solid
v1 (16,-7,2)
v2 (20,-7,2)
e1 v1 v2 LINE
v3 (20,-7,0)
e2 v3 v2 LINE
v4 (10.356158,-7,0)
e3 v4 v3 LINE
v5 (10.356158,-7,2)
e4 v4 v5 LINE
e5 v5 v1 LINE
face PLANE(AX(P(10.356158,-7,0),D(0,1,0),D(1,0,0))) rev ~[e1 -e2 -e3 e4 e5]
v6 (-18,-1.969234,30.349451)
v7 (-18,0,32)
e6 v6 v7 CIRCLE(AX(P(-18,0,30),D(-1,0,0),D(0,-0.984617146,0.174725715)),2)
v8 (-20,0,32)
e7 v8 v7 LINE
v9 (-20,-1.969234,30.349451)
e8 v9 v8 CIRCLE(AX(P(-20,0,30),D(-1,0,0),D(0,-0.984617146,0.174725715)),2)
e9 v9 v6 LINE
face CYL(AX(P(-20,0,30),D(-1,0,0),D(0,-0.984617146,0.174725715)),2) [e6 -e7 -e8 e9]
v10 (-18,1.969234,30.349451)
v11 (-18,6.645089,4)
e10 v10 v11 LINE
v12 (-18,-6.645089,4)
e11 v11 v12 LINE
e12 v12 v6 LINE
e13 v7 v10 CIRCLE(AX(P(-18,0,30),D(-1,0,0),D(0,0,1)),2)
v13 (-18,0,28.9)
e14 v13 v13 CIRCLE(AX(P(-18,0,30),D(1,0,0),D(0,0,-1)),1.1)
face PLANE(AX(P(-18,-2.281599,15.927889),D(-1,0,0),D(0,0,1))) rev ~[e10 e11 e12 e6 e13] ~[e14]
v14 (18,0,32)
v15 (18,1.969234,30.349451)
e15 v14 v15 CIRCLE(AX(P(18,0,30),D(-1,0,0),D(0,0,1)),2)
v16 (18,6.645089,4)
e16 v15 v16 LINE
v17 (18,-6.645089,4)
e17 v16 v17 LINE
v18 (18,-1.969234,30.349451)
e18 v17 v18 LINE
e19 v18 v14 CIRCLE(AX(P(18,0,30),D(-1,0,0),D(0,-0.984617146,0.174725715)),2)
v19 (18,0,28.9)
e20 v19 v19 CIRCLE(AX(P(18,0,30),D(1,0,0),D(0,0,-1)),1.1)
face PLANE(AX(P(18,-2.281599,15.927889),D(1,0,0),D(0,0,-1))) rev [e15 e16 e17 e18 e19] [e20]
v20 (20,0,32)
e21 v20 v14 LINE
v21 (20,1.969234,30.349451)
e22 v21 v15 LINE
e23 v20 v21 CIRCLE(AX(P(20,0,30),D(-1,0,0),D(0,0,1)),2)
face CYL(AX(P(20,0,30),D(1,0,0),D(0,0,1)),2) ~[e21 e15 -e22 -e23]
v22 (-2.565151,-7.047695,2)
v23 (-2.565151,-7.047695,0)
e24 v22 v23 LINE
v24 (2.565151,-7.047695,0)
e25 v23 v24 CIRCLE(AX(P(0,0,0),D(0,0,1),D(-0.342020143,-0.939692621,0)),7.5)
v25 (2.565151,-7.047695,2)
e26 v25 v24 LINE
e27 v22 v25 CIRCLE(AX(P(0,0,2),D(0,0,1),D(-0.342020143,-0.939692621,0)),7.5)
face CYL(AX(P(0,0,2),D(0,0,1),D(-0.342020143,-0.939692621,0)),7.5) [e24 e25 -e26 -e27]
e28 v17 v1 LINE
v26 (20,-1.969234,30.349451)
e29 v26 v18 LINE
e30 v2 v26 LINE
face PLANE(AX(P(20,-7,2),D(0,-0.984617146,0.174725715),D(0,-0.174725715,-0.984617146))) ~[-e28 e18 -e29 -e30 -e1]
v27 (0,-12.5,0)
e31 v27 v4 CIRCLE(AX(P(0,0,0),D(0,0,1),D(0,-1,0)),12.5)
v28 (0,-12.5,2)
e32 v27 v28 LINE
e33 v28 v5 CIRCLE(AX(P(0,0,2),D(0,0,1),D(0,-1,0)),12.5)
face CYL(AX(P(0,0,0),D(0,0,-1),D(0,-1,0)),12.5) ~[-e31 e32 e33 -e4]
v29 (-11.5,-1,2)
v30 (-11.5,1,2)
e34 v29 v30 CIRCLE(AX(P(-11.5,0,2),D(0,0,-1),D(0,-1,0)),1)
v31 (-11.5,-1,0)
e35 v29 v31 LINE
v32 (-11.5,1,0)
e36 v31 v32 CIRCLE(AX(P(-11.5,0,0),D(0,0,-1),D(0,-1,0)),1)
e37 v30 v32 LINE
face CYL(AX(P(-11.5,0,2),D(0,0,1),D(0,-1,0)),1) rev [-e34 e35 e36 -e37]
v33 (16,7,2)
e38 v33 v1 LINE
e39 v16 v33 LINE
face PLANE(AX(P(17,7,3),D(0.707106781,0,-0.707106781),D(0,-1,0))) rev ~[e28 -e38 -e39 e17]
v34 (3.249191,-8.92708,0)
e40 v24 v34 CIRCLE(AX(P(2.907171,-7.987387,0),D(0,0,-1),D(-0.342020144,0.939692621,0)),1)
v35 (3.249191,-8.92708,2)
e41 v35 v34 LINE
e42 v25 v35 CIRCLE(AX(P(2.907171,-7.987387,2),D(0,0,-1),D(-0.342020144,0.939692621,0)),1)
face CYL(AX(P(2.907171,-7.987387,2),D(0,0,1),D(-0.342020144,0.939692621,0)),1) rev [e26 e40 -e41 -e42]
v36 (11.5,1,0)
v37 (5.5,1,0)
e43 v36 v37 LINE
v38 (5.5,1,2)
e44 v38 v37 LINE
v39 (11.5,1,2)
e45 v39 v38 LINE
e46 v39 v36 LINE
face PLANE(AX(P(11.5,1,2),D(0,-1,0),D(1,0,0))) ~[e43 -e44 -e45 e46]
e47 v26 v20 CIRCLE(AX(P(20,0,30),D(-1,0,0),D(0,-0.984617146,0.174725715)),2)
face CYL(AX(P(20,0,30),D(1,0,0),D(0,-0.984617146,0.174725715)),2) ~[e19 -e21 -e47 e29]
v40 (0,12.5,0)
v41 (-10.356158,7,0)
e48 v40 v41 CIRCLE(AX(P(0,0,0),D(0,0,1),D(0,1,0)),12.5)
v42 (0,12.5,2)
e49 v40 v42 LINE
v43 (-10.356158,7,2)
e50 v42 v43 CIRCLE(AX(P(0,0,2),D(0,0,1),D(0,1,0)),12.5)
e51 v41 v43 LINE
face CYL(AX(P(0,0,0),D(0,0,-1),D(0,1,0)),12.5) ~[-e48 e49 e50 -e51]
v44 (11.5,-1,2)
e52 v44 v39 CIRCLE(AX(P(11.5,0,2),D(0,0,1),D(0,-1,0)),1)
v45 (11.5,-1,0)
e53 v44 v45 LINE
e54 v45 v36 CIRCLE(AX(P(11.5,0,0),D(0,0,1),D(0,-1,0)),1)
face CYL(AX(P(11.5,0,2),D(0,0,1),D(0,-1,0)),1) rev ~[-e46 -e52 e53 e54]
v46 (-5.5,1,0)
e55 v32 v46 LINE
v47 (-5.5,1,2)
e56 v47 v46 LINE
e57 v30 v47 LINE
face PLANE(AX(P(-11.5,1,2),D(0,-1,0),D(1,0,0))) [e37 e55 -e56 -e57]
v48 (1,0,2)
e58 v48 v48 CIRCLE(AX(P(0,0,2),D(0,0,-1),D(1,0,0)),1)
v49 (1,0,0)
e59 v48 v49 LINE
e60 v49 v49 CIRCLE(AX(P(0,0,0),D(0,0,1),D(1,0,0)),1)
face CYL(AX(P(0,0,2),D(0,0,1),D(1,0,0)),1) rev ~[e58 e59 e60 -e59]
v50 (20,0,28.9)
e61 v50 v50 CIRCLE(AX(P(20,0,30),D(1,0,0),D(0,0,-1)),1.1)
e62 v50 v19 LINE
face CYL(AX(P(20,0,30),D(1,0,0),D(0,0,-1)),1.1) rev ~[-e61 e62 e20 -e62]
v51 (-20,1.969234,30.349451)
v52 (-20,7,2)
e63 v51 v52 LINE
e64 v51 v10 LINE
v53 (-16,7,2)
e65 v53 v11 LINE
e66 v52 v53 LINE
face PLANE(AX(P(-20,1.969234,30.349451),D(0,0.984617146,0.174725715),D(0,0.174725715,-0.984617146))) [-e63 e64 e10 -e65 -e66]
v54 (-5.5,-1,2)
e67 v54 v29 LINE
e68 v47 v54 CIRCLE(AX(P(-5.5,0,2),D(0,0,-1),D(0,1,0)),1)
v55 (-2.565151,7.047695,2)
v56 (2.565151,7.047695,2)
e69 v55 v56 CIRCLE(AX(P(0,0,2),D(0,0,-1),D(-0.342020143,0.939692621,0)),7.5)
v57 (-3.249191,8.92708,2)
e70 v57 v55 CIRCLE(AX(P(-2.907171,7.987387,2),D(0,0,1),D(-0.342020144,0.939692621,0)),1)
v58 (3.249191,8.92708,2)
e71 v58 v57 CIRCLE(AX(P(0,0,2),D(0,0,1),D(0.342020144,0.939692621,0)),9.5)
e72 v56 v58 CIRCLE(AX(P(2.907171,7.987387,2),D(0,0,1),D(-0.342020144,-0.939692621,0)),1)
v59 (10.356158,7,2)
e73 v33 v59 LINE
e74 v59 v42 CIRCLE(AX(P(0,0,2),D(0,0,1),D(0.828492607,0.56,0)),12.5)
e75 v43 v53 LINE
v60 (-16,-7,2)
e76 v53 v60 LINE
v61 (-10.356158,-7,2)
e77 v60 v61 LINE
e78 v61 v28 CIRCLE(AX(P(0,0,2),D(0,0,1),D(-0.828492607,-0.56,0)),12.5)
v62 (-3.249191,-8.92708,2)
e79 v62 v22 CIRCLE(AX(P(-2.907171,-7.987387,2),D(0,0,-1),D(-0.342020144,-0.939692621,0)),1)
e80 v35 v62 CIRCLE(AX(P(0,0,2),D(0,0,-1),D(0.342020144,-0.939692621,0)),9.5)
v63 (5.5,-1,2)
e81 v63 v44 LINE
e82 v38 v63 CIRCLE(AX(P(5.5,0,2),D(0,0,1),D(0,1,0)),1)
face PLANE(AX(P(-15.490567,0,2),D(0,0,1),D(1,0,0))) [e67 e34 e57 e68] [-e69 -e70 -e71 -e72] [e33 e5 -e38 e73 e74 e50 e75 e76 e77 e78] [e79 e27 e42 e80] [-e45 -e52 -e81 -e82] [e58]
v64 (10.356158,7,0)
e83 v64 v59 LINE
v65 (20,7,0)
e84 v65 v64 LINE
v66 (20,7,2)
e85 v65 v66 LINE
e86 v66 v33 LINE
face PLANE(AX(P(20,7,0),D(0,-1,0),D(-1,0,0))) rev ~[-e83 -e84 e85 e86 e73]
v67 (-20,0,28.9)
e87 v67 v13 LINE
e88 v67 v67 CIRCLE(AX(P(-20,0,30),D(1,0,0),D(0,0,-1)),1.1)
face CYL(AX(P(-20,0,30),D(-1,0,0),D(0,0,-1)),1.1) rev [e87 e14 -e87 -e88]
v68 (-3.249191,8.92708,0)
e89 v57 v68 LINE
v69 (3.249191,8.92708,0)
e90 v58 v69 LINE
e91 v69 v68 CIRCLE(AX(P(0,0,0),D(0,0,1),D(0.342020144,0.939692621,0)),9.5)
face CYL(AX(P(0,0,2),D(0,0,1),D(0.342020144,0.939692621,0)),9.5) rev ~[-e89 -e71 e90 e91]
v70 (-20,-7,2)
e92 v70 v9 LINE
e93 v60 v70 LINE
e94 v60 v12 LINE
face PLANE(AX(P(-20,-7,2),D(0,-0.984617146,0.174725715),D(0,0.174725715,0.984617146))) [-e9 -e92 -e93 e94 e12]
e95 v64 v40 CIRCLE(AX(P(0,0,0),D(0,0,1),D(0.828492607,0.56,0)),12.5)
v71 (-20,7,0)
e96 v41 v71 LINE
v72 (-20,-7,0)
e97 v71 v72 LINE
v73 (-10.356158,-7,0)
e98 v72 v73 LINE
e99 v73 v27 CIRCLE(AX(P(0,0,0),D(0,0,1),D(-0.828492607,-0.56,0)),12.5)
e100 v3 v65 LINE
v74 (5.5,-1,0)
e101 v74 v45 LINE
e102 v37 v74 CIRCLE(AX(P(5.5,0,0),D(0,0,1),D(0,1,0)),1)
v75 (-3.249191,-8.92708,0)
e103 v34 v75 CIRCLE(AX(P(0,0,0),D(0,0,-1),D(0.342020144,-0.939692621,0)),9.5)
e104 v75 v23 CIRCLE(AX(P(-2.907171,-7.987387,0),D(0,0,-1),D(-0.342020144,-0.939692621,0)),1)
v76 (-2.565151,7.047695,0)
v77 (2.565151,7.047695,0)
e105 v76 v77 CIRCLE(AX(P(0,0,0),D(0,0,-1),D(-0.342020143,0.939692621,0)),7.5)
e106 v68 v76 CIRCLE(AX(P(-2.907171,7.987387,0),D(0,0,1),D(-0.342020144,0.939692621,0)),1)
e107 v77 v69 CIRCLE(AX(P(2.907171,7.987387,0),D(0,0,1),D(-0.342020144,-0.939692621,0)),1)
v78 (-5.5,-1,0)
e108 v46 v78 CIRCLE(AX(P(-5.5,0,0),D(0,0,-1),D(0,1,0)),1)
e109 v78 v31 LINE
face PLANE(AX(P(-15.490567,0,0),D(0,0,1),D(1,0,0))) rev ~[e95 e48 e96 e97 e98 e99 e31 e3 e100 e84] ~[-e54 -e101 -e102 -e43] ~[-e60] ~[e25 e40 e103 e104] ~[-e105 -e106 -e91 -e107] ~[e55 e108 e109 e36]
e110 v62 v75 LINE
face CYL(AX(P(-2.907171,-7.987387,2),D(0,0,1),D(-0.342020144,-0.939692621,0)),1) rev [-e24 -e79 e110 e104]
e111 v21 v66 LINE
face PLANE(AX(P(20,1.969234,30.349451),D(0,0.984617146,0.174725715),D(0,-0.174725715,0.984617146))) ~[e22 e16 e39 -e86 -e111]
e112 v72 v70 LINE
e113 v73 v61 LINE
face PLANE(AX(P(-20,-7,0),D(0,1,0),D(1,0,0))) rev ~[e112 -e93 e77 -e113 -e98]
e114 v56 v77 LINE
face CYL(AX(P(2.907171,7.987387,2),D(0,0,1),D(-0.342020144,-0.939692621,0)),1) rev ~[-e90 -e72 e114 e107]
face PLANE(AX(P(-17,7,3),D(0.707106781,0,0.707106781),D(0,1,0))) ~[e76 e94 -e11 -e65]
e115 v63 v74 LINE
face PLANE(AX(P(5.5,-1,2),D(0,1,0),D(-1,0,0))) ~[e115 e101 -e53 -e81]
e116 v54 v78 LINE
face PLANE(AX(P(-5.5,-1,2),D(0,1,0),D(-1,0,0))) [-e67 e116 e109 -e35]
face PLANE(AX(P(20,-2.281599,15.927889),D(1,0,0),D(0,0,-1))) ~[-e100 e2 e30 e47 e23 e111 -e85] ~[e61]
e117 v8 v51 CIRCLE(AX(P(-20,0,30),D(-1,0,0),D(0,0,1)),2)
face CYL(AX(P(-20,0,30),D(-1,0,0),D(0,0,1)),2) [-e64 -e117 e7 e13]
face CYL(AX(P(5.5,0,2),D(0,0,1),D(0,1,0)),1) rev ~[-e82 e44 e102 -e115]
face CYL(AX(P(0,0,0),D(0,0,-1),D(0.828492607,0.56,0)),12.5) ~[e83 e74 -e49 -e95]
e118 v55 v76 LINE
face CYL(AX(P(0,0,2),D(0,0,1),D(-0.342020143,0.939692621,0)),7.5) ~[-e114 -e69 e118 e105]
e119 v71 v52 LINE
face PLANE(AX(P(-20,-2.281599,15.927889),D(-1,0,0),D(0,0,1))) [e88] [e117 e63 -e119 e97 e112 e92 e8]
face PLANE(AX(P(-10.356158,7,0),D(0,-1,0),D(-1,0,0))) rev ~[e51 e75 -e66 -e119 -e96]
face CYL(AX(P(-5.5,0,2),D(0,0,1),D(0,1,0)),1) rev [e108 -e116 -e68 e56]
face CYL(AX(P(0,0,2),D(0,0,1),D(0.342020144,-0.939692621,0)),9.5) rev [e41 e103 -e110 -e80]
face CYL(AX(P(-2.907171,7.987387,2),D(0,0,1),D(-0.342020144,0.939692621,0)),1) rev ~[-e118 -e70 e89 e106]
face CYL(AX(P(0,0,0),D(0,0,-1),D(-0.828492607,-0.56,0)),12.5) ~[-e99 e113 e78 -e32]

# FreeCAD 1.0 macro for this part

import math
import FreeCAD as App
import Part
import Sketcher
Q = App.Units.Quantity


def edges_at(feature, points):
    """Names of the edges that pass closest to the given points."""
    edges = feature.Shape.Edges
    near = lambda p: min(range(len(edges)), key=lambda i: edges[i].distToShape(Part.Vertex(*p))[0])
    return sorted({f"Edge{near(p) + 1}" for p in points})

doc = App.newDocument("Part")
body = doc.addObject("PartDesign::Body", "Body")

sketch1 = doc.addObject("Sketcher::SketchObject", "Sketch")
body.addObject(sketch1)
sketch1.AttachmentSupport = (doc.XY_Plane, [""])
sketch1.MapMode = "FlatFace"
sketch1.addGeometry([
    Part.LineSegment(App.Vector(-20, -7, 0), App.Vector(-10, -7, 0)),
    Part.ArcOfCircle(Part.Circle(App.Vector(0, 0, 0), App.Vector(0, 0, 1), 12), math.radians(-146), math.radians(-90)),
    Part.ArcOfCircle(Part.Circle(App.Vector(0, 0, 0), App.Vector(0, 0, 1), 12), math.radians(-90), math.radians(-34)),
    Part.LineSegment(App.Vector(10, -7, 0), App.Vector(20, -7, 0)),
    Part.LineSegment(App.Vector(20, -7, 0), App.Vector(20, 7, 0)),
    Part.LineSegment(App.Vector(20, 7, 0), App.Vector(10, 7, 0)),
    Part.ArcOfCircle(Part.Circle(App.Vector(0, 0, 0), App.Vector(0, 0, 1), 12), math.radians(34), math.radians(90)),
    Part.ArcOfCircle(Part.Circle(App.Vector(0, 0, 0), App.Vector(0, 0, 1), 12), math.radians(90), math.radians(146)),
    Part.LineSegment(App.Vector(-10, 7, 0), App.Vector(-20, 7, 0)),
    Part.LineSegment(App.Vector(-20, 7, 0), App.Vector(-20, -7, 0)),
], False)
sketch1.addConstraint([
    Sketcher.Constraint("Coincident", 0, 2, 1, 1),
    Sketcher.Constraint("Tangent", 1, 2, 2, 1),
    Sketcher.Constraint("Coincident", 2, 2, 3, 1),
    Sketcher.Constraint("Coincident", 3, 2, 4, 1),
    Sketcher.Constraint("Coincident", 4, 2, 5, 1),
    Sketcher.Constraint("Coincident", 5, 2, 6, 1),
    Sketcher.Constraint("Tangent", 6, 2, 7, 1),
    Sketcher.Constraint("Coincident", 7, 2, 8, 1),
    Sketcher.Constraint("Coincident", 8, 2, 9, 1),
    Sketcher.Constraint("Coincident", 9, 2, 0, 1),
    Sketcher.Constraint("Horizontal", 0),
    Sketcher.Constraint("Horizontal", 3),
    Sketcher.Constraint("Vertical", 4),
    Sketcher.Constraint("Horizontal", 5),
    Sketcher.Constraint("Horizontal", 8),
    Sketcher.Constraint("Vertical", 9),
    Sketcher.Constraint("Coincident", 1, 3, -1, 1),
    Sketcher.Constraint("Coincident", 6, 3, -1, 1),
    Sketcher.Constraint("Equal", 1, 2),
    Sketcher.Constraint("Equal", 2, 6),
    Sketcher.Constraint("Equal", 6, 7),
    Sketcher.Constraint("Symmetric", 3, 2, 8, 2, -1, 1),
    Sketcher.Constraint("PointOnObject", 1, 2, -2),
    Sketcher.Constraint("PointOnObject", 6, 2, -2),
    Sketcher.Constraint("Horizontal", 0, 2, 2, 2),
    Sketcher.Constraint("Horizontal", 5, 2, 7, 2),
    Sketcher.Constraint("Radius", 1, Q("12.5 mm")),
    Sketcher.Constraint("DistanceY", 4, 1, 4, 2, Q("14 mm")),
    Sketcher.Constraint("DistanceX", -1, 1, 3, 2, Q("20 mm")),
])
pad1 = doc.addObject("PartDesign::Pad", "Pad")
body.addObject(pad1)
pad1.Profile = sketch1
pad1.Length = 2

sketch2 = doc.addObject("Sketcher::SketchObject", "Sketch001")
body.addObject(sketch2)
sketch2.AttachmentSupport = (doc.YZ_Plane, [""])
sketch2.MapMode = "FlatFace"
sketch2.AttachmentOffset = App.Placement(App.Vector(0, 0, -20), App.Rotation())
sketch2.addGeometry([
    Part.LineSegment(App.Vector(-7, 2, 0), App.Vector(-2, 30.3, 0)),
    Part.ArcOfCircle(Part.Circle(App.Vector(0, 30, 0), App.Vector(0, 0, 1), 2), math.radians(90), math.radians(170)),
    Part.ArcOfCircle(Part.Circle(App.Vector(0, 30, 0), App.Vector(0, 0, 1), 2), math.radians(10), math.radians(90)),
    Part.LineSegment(App.Vector(2, 30.3, 0), App.Vector(7, 2, 0)),
    Part.LineSegment(App.Vector(7, 2, 0), App.Vector(-7, 2, 0)),
    Part.Circle(App.Vector(0, 30, 0), App.Vector(0, 0, 1), 1.1),
], False)
sketch2.addConstraint([
    Sketcher.Constraint("Tangent", 0, 2, 1, 2),
    Sketcher.Constraint("Tangent", 1, 1, 2, 2),
    Sketcher.Constraint("Tangent", 2, 1, 3, 1),
    Sketcher.Constraint("Coincident", 3, 2, 4, 1),
    Sketcher.Constraint("Coincident", 4, 2, 0, 1),
    Sketcher.Constraint("Horizontal", 4),
    Sketcher.Constraint("Coincident", 5, 3, 1, 3),
    Sketcher.Constraint("Equal", 1, 2),
    Sketcher.Constraint("Symmetric", 0, 2, 2, 1, -2),
    Sketcher.Constraint("PointOnObject", 1, 1, -2),
    Sketcher.Constraint("Radius", 1, Q("2 mm")),
    Sketcher.Constraint("Diameter", 5, Q("2.2 mm")),
    Sketcher.Constraint("DistanceX", 4, 2, 4, 1, Q("14 mm")),
    Sketcher.Constraint("DistanceY", -1, 1, 1, 3, Q("30 mm")),
    Sketcher.Constraint("DistanceY", -1, 1, 3, 2, Q("2 mm")),
])
pad2 = doc.addObject("PartDesign::Pad", "Pad001")
body.addObject(pad2)
pad2.Profile = sketch2
pad2.Length = 2
doc.recompute()

mirrored = doc.addObject("PartDesign::Mirrored", "Mirrored")
body.addObject(mirrored)
mirrored.Originals = [pad2]
mirrored.MirrorPlane = (doc.YZ_Plane, [""])
body.Tip = mirrored

sketch3 = doc.addObject("Sketcher::SketchObject", "Sketch002")
body.addObject(sketch3)
sketch3.AttachmentSupport = (doc.XY_Plane, [""])
sketch3.MapMode = "FlatFace"
sketch3.AttachmentOffset = App.Placement(App.Vector(0, 0, 2), App.Rotation())
sketch3.addGeometry([
    Part.Circle(App.Vector(0, 0, 0), App.Vector(0, 0, 1), 1),
    Part.LineSegment(App.Vector(-5.5, 1, 0), App.Vector(-11.5, 1, 0)),
    Part.ArcOfCircle(Part.Circle(App.Vector(-11.5, 0, 0), App.Vector(0, 0, 1), 1), math.radians(90), math.radians(270)),
    Part.LineSegment(App.Vector(-11.5, -1, 0), App.Vector(-5.5, -1, 0)),
    Part.ArcOfCircle(Part.Circle(App.Vector(-5.5, 0, 0), App.Vector(0, 0, 1), 1), math.radians(-90), math.radians(90)),
    Part.ArcOfCircle(Part.Circle(App.Vector(0, 0, 0), App.Vector(0, 0, 1), 9.5), math.radians(70), math.radians(110)),
    Part.ArcOfCircle(Part.Circle(App.Vector(-2.9, 8, 0), App.Vector(0, 0, 1), 1), math.radians(110), math.radians(290)),
    Part.ArcOfCircle(Part.Circle(App.Vector(0, 0, 0), App.Vector(0, 0, 1), 7.5), math.radians(70), math.radians(110)),
    Part.ArcOfCircle(Part.Circle(App.Vector(2.9, 8, 0), App.Vector(0, 0, 1), 1), math.radians(-110), math.radians(70)),
], False)
sketch3.addConstraint([
    Sketcher.Constraint("Tangent", 1, 2, 2, 1),
    Sketcher.Constraint("Tangent", 2, 2, 3, 1),
    Sketcher.Constraint("Tangent", 3, 2, 4, 1),
    Sketcher.Constraint("Tangent", 4, 2, 1, 1),
    Sketcher.Constraint("Tangent", 5, 2, 6, 1),
    Sketcher.Constraint("Tangent", 6, 2, 7, 2),
    Sketcher.Constraint("Tangent", 7, 1, 8, 1),
    Sketcher.Constraint("Tangent", 8, 2, 5, 1),
    Sketcher.Constraint("Horizontal", 1),
    Sketcher.Constraint("Horizontal", 3),
    Sketcher.Constraint("Coincident", 0, 3, -1, 1),
    Sketcher.Constraint("Coincident", 5, 3, -1, 1),
    Sketcher.Constraint("Coincident", 7, 3, -1, 1),
    Sketcher.Constraint("Equal", 0, 2),
    Sketcher.Constraint("Equal", 4, 6),
    Sketcher.Constraint("PointOnObject", 2, 3, -1),
    Sketcher.Constraint("Horizontal", 6, 3, 8, 3),
    Sketcher.Constraint("Diameter", 0, Q("2 mm")),
    Sketcher.Constraint("Radius", 5, Q("9.5 mm")),
    Sketcher.Constraint("DistanceX", 1, 2, 1, 1, Q("6 mm")),
    Sketcher.Constraint("DistanceX", 2, 3, -1, 1, Q("11.5 mm")),
    Sketcher.Constraint("DistanceX", 6, 3, -1, 1, Q("2.907171 mm")),
])
pocket1 = doc.addObject("PartDesign::Pocket", "Pocket")
body.addObject(pocket1)
pocket1.Profile = sketch3
pocket1.Length = 2
doc.recompute()

mirrored2 = doc.addObject("PartDesign::Mirrored", "Mirrored001")
body.addObject(mirrored2)
mirrored2.Originals = [pocket1]
mirrored2.MirrorPlane = (doc.XZ_Plane, [""])
body.Tip = mirrored2
doc.recompute()

mirrored3 = doc.addObject("PartDesign::Mirrored", "Mirrored002")
body.addObject(mirrored3)
mirrored3.Originals = [pocket1]
mirrored3.MirrorPlane = (doc.YZ_Plane, [""])
body.Tip = mirrored3
doc.recompute()

chamfer = doc.addObject("PartDesign::Chamfer", "Chamfer")
body.addObject(chamfer)
chamfer.Base = (mirrored3, edges_at(mirrored3, [(-18, 0, 2), (18, 0, 2)]))
chamfer.Size = 2

doc.recompute()
